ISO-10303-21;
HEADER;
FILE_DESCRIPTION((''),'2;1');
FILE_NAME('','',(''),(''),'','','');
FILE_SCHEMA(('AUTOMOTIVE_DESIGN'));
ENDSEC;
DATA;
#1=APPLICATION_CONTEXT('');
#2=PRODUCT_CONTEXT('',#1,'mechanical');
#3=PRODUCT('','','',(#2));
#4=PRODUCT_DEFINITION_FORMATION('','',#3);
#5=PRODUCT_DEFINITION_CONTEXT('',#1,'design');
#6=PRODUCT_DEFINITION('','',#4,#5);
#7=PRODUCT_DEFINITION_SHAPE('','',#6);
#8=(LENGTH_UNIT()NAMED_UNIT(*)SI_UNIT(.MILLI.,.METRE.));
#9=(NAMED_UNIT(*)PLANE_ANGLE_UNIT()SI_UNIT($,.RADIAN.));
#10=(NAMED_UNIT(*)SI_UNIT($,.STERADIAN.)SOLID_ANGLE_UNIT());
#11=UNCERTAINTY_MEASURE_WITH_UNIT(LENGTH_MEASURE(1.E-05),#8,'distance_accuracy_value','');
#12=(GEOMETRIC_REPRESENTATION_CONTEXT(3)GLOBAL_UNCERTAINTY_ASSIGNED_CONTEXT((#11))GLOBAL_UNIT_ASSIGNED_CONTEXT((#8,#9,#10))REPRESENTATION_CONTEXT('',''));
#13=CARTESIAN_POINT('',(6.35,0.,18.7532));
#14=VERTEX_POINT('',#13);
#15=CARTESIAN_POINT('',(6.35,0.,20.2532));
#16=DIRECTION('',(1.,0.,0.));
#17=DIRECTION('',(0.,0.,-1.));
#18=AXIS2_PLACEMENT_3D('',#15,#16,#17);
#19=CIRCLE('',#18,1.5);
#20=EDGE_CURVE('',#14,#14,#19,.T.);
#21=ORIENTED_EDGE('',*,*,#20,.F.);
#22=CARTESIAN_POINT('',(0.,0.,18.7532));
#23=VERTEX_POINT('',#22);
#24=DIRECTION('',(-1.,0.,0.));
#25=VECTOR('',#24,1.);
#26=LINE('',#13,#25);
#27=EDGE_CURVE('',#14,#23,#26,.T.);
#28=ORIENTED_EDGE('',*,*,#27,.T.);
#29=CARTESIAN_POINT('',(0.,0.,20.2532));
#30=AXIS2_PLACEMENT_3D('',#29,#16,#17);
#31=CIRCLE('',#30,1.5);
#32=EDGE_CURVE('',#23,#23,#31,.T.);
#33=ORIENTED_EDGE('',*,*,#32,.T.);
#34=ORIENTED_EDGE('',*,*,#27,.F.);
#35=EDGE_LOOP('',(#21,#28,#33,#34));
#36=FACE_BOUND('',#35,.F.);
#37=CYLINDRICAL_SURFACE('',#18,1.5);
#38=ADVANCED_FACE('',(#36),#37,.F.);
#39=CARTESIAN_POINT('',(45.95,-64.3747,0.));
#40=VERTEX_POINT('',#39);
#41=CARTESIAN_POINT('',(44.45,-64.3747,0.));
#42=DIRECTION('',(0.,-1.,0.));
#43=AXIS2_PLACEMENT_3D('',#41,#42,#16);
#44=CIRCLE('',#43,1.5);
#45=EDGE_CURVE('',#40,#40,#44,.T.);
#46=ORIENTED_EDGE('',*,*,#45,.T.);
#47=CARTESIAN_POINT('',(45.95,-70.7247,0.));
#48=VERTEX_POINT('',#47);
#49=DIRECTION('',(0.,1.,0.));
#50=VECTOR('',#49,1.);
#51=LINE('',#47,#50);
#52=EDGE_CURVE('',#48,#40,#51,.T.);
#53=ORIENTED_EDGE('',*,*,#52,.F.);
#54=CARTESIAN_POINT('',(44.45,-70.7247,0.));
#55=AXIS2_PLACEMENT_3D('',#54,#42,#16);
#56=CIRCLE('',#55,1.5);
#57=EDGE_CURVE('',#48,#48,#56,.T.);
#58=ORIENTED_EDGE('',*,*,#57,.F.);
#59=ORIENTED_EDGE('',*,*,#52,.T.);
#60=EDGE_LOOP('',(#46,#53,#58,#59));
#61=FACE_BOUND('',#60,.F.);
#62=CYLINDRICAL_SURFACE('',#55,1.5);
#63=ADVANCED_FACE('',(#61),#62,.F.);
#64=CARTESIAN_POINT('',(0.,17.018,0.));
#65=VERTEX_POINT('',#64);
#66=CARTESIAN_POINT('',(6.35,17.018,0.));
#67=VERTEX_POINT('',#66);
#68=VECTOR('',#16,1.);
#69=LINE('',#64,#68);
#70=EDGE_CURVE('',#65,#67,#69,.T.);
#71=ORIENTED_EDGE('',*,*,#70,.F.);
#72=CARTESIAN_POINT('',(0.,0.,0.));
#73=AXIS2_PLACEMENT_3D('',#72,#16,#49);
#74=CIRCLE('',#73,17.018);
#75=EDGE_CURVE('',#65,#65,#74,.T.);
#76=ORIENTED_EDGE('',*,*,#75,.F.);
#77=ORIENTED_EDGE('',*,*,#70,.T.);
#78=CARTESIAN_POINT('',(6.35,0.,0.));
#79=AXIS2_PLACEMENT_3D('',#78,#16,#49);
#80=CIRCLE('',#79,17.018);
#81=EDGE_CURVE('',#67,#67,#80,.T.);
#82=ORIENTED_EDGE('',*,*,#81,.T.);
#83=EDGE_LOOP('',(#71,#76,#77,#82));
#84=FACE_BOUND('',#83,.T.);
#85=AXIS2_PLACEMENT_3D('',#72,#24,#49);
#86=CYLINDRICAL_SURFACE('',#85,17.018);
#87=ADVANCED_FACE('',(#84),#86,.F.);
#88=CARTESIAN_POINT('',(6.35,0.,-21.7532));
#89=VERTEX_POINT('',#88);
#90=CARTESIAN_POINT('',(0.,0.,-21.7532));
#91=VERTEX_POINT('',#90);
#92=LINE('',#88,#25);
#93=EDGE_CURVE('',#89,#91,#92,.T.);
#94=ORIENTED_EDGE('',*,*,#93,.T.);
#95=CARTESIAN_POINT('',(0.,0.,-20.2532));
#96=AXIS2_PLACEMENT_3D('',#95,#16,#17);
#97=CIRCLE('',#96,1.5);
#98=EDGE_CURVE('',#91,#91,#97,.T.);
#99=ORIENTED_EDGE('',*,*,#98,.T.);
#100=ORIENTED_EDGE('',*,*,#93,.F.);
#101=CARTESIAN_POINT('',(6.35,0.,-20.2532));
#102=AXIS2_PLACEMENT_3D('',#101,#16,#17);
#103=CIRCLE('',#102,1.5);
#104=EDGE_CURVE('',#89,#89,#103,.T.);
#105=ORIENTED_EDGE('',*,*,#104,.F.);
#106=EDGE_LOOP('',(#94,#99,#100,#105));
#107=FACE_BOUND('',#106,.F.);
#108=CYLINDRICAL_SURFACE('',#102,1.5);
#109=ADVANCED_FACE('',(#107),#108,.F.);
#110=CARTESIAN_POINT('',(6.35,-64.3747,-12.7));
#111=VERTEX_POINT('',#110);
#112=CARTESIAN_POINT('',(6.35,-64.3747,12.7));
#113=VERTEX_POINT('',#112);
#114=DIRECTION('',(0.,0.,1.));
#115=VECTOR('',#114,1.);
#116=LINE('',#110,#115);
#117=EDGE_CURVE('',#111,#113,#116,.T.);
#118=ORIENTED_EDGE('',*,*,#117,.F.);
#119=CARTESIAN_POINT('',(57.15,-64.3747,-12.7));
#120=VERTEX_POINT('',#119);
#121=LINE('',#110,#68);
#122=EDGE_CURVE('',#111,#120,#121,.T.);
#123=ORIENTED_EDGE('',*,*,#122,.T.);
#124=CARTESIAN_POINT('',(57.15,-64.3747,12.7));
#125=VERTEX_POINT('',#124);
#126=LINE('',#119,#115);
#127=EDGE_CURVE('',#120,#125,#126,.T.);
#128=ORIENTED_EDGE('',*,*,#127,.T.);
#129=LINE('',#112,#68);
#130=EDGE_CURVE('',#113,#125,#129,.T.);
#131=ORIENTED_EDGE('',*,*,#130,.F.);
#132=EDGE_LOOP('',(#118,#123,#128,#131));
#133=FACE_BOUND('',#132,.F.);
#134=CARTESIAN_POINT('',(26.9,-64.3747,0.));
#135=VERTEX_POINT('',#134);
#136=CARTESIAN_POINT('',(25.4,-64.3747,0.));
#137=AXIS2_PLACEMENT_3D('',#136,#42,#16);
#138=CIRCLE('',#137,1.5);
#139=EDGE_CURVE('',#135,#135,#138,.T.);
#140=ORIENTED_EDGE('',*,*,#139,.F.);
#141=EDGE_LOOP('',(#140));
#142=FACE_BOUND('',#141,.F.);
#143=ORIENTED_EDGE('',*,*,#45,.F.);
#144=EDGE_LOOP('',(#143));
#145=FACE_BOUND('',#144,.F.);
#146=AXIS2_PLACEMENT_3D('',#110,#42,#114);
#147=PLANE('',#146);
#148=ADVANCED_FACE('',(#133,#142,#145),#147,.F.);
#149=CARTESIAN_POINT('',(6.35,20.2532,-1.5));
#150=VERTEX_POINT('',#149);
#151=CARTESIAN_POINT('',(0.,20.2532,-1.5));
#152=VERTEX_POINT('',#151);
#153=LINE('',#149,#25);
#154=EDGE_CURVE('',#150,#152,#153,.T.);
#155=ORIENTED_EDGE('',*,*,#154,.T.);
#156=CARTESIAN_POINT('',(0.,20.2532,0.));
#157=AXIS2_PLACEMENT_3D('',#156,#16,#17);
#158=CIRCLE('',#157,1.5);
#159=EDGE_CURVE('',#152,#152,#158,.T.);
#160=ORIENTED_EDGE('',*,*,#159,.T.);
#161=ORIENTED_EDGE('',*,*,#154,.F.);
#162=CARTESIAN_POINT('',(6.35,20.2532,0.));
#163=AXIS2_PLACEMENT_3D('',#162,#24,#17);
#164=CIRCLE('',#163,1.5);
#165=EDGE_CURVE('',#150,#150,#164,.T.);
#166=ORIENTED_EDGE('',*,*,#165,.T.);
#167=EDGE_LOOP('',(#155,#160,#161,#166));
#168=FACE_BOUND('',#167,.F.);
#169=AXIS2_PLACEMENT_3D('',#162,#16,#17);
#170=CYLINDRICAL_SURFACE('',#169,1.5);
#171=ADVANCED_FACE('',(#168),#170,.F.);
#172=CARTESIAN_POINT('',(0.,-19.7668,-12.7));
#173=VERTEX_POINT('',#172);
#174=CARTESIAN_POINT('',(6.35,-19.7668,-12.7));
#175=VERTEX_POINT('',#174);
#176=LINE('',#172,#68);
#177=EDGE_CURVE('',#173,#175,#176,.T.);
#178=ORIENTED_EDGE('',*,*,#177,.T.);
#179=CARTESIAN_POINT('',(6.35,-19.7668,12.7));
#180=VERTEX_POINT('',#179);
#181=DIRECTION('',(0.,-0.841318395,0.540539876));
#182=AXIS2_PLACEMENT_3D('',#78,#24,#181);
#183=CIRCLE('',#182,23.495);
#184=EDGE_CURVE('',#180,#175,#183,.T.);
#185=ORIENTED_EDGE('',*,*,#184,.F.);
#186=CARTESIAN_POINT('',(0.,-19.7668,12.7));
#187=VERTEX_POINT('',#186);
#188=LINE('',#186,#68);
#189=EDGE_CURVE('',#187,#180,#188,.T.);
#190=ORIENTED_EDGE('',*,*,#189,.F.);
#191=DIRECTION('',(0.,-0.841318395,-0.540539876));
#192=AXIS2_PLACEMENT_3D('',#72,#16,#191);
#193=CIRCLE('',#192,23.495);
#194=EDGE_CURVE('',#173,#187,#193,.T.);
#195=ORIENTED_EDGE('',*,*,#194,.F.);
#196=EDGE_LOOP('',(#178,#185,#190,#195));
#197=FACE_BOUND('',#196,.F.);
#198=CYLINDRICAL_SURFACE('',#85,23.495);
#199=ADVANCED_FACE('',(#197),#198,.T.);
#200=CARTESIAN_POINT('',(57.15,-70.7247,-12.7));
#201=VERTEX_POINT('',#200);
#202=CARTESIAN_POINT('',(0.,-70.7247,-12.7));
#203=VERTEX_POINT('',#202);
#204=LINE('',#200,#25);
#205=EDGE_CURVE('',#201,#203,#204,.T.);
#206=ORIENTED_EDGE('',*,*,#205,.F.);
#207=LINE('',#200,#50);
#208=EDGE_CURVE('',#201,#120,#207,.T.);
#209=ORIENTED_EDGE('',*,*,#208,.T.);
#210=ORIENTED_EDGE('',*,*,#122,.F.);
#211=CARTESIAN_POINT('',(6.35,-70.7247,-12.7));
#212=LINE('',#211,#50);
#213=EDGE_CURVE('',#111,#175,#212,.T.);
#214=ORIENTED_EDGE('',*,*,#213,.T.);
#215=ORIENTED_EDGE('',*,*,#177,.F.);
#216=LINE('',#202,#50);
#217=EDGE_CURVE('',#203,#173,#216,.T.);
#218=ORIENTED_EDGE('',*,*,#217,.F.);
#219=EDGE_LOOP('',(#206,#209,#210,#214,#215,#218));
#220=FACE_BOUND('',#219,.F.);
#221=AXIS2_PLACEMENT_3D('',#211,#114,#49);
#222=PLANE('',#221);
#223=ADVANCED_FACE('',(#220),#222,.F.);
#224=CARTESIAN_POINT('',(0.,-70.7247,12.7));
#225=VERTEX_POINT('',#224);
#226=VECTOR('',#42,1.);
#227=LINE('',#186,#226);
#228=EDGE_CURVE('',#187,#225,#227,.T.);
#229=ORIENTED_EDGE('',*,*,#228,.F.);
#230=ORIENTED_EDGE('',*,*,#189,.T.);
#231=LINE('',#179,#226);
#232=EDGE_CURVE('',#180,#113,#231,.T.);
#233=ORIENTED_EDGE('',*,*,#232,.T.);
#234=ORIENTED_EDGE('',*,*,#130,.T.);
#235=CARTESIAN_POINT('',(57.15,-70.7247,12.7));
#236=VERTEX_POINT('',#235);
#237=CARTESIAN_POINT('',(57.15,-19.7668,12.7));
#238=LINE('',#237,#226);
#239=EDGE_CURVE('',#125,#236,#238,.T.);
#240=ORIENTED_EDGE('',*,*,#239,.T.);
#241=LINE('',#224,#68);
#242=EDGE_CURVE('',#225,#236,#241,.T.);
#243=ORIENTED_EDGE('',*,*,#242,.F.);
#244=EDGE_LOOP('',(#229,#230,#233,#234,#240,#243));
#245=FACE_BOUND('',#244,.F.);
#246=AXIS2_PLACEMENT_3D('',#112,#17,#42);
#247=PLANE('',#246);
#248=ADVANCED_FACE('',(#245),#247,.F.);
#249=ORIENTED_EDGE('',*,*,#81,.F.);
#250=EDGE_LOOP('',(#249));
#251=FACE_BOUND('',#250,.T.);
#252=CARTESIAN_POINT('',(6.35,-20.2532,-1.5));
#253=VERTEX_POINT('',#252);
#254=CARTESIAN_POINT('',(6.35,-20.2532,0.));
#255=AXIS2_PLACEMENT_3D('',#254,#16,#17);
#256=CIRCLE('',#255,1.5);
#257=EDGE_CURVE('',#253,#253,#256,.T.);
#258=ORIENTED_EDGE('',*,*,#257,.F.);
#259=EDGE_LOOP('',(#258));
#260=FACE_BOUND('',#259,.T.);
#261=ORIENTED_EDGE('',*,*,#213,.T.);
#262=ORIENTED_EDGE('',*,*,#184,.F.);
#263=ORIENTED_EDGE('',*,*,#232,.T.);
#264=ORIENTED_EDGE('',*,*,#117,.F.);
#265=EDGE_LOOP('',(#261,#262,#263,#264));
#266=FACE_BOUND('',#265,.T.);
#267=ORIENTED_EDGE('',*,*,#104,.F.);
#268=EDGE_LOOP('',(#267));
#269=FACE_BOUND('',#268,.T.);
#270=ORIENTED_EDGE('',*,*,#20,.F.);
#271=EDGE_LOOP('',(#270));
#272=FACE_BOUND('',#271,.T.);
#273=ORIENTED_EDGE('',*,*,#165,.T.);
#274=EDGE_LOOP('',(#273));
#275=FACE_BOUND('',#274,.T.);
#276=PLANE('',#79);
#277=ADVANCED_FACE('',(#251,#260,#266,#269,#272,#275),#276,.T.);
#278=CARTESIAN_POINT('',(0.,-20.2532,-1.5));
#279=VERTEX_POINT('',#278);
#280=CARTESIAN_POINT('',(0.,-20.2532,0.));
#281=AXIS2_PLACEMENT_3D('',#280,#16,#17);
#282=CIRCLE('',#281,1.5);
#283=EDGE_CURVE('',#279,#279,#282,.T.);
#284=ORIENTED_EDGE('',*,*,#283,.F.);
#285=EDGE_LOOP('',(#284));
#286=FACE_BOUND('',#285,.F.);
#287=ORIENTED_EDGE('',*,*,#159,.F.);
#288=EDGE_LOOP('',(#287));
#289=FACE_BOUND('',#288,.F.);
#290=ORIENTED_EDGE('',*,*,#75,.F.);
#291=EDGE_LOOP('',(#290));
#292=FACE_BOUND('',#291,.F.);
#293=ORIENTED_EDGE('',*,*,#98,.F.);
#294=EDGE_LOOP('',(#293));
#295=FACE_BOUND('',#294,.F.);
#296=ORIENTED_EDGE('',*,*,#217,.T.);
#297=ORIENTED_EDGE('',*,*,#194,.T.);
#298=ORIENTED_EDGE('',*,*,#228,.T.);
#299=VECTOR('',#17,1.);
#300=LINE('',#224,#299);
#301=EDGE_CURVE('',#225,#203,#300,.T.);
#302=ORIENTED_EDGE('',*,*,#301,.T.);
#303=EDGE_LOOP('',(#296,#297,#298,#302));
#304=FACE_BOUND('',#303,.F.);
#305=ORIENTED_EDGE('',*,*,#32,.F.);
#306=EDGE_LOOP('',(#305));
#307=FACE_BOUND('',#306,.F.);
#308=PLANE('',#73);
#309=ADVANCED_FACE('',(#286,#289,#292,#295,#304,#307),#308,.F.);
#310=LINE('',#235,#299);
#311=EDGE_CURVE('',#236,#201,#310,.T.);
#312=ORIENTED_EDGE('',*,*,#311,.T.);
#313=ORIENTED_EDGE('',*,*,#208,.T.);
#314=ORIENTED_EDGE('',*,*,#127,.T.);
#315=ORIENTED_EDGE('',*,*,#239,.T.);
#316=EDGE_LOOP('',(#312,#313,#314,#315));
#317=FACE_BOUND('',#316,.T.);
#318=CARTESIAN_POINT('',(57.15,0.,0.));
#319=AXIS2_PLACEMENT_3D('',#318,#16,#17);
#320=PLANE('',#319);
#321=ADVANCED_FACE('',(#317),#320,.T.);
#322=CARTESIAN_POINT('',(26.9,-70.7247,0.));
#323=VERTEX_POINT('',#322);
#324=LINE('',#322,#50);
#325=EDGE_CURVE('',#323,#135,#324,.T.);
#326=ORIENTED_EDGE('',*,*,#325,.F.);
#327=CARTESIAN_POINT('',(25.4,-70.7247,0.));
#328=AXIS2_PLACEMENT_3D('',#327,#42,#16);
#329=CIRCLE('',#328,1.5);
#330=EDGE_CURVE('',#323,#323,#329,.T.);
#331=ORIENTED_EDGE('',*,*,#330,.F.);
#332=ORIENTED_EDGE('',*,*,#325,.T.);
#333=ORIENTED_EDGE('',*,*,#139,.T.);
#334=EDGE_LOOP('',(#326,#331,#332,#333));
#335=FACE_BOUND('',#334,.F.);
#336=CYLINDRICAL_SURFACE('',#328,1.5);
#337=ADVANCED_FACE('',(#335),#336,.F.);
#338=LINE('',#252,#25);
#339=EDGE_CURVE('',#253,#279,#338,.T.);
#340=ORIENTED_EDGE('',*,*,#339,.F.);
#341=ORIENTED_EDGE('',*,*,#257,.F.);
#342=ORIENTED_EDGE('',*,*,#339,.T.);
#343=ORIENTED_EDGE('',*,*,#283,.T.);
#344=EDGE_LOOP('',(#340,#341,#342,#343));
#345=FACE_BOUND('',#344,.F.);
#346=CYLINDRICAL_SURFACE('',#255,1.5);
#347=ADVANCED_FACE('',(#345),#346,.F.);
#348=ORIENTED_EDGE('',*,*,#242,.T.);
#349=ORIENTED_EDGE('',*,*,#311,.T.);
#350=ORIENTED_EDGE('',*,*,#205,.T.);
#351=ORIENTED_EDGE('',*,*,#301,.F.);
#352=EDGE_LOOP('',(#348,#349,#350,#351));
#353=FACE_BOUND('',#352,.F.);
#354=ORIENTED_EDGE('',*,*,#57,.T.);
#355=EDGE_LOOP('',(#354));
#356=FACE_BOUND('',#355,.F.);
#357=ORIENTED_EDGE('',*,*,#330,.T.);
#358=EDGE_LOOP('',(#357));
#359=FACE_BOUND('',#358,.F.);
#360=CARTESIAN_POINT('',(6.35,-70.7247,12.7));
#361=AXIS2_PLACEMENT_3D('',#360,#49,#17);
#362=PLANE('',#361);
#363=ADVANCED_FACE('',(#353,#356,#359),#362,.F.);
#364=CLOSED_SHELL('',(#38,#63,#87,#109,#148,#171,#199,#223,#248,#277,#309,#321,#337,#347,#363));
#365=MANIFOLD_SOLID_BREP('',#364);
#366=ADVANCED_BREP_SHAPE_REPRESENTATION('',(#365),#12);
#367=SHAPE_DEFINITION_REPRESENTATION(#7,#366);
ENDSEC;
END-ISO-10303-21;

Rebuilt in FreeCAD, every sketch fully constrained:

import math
import FreeCAD as App
import Part
import Sketcher

V = App.Vector
Q = App.Units.Quantity

doc = App.newDocument("Part")
body = doc.addObject("PartDesign::Body", "Body")

# Sketch on YZ plane
sketch1 = doc.addObject("Sketcher::SketchObject", "Sketch")
body.addObject(sketch1)
sketch1.AttachmentSupport = (doc.YZ_Plane, [""])
sketch1.MapMode = "FlatFace"
sketch1.addGeometry([
    Part.ArcOfCircle(Part.Circle(V(0, 0, 0), V(0, 0, 1), 23), math.radians(-147), math.radians(147)),  # 0
    Part.LineSegment(V(-20, 13, 0), V(-71, 13, 0)),  # 1
    Part.LineSegment(V(-71, 13, 0), V(-71, -13, 0)),  # 2
    Part.LineSegment(V(-71, -13, 0), V(-20, -13, 0)),  # 3
    Part.Circle(V(0, 0, 0), V(0, 0, 1), 17),  # 4
], False)
sketch1.addConstraint([
    Sketcher.Constraint("Coincident", 0, 2, 1, 1),
    Sketcher.Constraint("Coincident", 1, 2, 2, 1),
    Sketcher.Constraint("Coincident", 2, 2, 3, 1),
    Sketcher.Constraint("Coincident", 3, 2, 0, 1),
    Sketcher.Constraint("Horizontal", 1),
    Sketcher.Constraint("Vertical", 2),
    Sketcher.Constraint("Horizontal", 3),
    Sketcher.Constraint("Coincident", 0, 3, -1, 1),
    Sketcher.Constraint("Coincident", 4, 3, -1, 1),
    Sketcher.Constraint("Vertical", 0, 2, 3, 2),
    Sketcher.Constraint("Diameter", 4, Q("1.34 in")),
    Sketcher.Constraint("DistanceY", 2, 2, 2, 1, Q("1 in")),
    Sketcher.Constraint("Radius", 0, Q("0.925 in")),
    Sketcher.Constraint("DistanceX", 1, 2, 1, 1, Q("50.958 mm")),
])
pad1 = doc.addObject("PartDesign::Pad", "Pad")
body.addObject(pad1)
pad1.Profile = sketch1
pad1.Length = Q("0.25 in")

# Sketch on YZ plane
sketch2 = doc.addObject("Sketcher::SketchObject", "Sketch001")
body.addObject(sketch2)
sketch2.AttachmentSupport = (doc.YZ_Plane, [""])
sketch2.MapMode = "FlatFace"
sketch2.AttachmentOffset = App.Placement(V(0, 0, 0.25 * 25.4), App.Rotation())
sketch2.addGeometry([
    Part.LineSegment(V(-64, -13, 0), V(-64, 13, 0)),
    Part.LineSegment(V(-64, 13, 0), V(-71, 13, 0)),
    Part.LineSegment(V(-71, 13, 0), V(-71, -13, 0)),
    Part.LineSegment(V(-71, -13, 0), V(-64, -13, 0)),
], False)
sketch2.addConstraint([
    Sketcher.Constraint("Coincident", 0, 2, 1, 1),
    Sketcher.Constraint("Coincident", 1, 2, 2, 1),
    Sketcher.Constraint("Coincident", 2, 2, 3, 1),
    Sketcher.Constraint("Coincident", 3, 2, 0, 1),
    Sketcher.Constraint("Vertical", 0),
    Sketcher.Constraint("Horizontal", 1),
    Sketcher.Constraint("Vertical", 2),
    Sketcher.Constraint("Horizontal", 3),
    Sketcher.Constraint("DistanceX", 1, 2, 1, 1, Q("0.25 in")),
    Sketcher.Constraint("DistanceY", 0, 1, 0, 2, Q("1 in")),
    Sketcher.Constraint("DistanceY", -1, 1, 0, 2, Q("0.5 in")),
    Sketcher.Constraint("DistanceX", 0, 2, -1, 1, Q("64.3747 mm")),
])
pad2 = doc.addObject("PartDesign::Pad", "Pad001")
body.addObject(pad2)
pad2.Profile = sketch2
pad2.Length = Q("2 in")

# Sketch on XZ plane
sketch3 = doc.addObject("Sketcher::SketchObject", "Sketch002")
body.addObject(sketch3)
sketch3.AttachmentSupport = (doc.XZ_Plane, [""])
sketch3.MapMode = "FlatFace"
sketch3.AttachmentOffset = App.Placement(V(0, 0, 70.7247), App.Rotation())
sketch3.addGeometry([
    Part.Circle(V(25.4, 0, 0), V(0, 0, 1), 1.5),
    Part.Circle(V(44.5, 0, 0), V(0, 0, 1), 1.5),
], False)
sketch3.addConstraint([
    Sketcher.Constraint("Equal", 0, 1),
    Sketcher.Constraint("PointOnObject", 0, 3, -1),
    Sketcher.Constraint("PointOnObject", 1, 3, -1),
    Sketcher.Constraint("DistanceX", -1, 1, 0, 3, Q("1 in")),
    Sketcher.Constraint("Diameter", 0, Q("0.1181 in")),
    Sketcher.Constraint("DistanceX", -1, 1, 1, 3, Q("1.75 in")),
])
pocket1 = doc.addObject("PartDesign::Pocket", "Pocket")
body.addObject(pocket1)
pocket1.Profile = sketch3
pocket1.Length = Q("2 in")

# Sketch on YZ plane
sketch4 = doc.addObject("Sketcher::SketchObject", "Sketch003")
body.addObject(sketch4)
sketch4.AttachmentSupport = (doc.YZ_Plane, [""])
sketch4.MapMode = "FlatFace"
sketch4.AttachmentOffset = App.Placement(V(0, 0, 0.25 * 25.4), App.Rotation())
sketch4.addGeometry([
    Part.Circle(V(20.3, 0, 0), V(0, 0, 1), 1.5),
    Part.Circle(V(0, 20.3, 0), V(0, 0, 1), 1.5),
    Part.Circle(V(-20.3, 0, 0), V(0, 0, 1), 1.5),
    Part.Circle(V(0, -20.3, 0), V(0, 0, 1), 1.5),
], False)
sketch4.addConstraint([
    Sketcher.Constraint("Equal", 0, 1),
    Sketcher.Constraint("Equal", 1, 2),
    Sketcher.Constraint("Equal", 2, 3),
    Sketcher.Constraint("Symmetric", 0, 3, 2, 3, -1, 1),
    Sketcher.Constraint("Symmetric", 1, 3, 3, 3, -1, 1),
    Sketcher.Constraint("PointOnObject", 0, 3, -1),
    Sketcher.Constraint("PointOnObject", 1, 3, -2),
    Sketcher.Constraint("Diameter", 0, Q("0.1181 in")),
    Sketcher.Constraint("DistanceX", -1, 1, 0, 3, Q("20.2532 mm")),
    Sketcher.Constraint("DistanceY", -1, 1, 1, 3, Q("20.2532 mm")),
])
pocket2 = doc.addObject("PartDesign::Pocket", "Pocket001")
body.addObject(pocket2)
pocket2.Profile = sketch4
pocket2.Length = Q("2 in")

doc.recompute()
